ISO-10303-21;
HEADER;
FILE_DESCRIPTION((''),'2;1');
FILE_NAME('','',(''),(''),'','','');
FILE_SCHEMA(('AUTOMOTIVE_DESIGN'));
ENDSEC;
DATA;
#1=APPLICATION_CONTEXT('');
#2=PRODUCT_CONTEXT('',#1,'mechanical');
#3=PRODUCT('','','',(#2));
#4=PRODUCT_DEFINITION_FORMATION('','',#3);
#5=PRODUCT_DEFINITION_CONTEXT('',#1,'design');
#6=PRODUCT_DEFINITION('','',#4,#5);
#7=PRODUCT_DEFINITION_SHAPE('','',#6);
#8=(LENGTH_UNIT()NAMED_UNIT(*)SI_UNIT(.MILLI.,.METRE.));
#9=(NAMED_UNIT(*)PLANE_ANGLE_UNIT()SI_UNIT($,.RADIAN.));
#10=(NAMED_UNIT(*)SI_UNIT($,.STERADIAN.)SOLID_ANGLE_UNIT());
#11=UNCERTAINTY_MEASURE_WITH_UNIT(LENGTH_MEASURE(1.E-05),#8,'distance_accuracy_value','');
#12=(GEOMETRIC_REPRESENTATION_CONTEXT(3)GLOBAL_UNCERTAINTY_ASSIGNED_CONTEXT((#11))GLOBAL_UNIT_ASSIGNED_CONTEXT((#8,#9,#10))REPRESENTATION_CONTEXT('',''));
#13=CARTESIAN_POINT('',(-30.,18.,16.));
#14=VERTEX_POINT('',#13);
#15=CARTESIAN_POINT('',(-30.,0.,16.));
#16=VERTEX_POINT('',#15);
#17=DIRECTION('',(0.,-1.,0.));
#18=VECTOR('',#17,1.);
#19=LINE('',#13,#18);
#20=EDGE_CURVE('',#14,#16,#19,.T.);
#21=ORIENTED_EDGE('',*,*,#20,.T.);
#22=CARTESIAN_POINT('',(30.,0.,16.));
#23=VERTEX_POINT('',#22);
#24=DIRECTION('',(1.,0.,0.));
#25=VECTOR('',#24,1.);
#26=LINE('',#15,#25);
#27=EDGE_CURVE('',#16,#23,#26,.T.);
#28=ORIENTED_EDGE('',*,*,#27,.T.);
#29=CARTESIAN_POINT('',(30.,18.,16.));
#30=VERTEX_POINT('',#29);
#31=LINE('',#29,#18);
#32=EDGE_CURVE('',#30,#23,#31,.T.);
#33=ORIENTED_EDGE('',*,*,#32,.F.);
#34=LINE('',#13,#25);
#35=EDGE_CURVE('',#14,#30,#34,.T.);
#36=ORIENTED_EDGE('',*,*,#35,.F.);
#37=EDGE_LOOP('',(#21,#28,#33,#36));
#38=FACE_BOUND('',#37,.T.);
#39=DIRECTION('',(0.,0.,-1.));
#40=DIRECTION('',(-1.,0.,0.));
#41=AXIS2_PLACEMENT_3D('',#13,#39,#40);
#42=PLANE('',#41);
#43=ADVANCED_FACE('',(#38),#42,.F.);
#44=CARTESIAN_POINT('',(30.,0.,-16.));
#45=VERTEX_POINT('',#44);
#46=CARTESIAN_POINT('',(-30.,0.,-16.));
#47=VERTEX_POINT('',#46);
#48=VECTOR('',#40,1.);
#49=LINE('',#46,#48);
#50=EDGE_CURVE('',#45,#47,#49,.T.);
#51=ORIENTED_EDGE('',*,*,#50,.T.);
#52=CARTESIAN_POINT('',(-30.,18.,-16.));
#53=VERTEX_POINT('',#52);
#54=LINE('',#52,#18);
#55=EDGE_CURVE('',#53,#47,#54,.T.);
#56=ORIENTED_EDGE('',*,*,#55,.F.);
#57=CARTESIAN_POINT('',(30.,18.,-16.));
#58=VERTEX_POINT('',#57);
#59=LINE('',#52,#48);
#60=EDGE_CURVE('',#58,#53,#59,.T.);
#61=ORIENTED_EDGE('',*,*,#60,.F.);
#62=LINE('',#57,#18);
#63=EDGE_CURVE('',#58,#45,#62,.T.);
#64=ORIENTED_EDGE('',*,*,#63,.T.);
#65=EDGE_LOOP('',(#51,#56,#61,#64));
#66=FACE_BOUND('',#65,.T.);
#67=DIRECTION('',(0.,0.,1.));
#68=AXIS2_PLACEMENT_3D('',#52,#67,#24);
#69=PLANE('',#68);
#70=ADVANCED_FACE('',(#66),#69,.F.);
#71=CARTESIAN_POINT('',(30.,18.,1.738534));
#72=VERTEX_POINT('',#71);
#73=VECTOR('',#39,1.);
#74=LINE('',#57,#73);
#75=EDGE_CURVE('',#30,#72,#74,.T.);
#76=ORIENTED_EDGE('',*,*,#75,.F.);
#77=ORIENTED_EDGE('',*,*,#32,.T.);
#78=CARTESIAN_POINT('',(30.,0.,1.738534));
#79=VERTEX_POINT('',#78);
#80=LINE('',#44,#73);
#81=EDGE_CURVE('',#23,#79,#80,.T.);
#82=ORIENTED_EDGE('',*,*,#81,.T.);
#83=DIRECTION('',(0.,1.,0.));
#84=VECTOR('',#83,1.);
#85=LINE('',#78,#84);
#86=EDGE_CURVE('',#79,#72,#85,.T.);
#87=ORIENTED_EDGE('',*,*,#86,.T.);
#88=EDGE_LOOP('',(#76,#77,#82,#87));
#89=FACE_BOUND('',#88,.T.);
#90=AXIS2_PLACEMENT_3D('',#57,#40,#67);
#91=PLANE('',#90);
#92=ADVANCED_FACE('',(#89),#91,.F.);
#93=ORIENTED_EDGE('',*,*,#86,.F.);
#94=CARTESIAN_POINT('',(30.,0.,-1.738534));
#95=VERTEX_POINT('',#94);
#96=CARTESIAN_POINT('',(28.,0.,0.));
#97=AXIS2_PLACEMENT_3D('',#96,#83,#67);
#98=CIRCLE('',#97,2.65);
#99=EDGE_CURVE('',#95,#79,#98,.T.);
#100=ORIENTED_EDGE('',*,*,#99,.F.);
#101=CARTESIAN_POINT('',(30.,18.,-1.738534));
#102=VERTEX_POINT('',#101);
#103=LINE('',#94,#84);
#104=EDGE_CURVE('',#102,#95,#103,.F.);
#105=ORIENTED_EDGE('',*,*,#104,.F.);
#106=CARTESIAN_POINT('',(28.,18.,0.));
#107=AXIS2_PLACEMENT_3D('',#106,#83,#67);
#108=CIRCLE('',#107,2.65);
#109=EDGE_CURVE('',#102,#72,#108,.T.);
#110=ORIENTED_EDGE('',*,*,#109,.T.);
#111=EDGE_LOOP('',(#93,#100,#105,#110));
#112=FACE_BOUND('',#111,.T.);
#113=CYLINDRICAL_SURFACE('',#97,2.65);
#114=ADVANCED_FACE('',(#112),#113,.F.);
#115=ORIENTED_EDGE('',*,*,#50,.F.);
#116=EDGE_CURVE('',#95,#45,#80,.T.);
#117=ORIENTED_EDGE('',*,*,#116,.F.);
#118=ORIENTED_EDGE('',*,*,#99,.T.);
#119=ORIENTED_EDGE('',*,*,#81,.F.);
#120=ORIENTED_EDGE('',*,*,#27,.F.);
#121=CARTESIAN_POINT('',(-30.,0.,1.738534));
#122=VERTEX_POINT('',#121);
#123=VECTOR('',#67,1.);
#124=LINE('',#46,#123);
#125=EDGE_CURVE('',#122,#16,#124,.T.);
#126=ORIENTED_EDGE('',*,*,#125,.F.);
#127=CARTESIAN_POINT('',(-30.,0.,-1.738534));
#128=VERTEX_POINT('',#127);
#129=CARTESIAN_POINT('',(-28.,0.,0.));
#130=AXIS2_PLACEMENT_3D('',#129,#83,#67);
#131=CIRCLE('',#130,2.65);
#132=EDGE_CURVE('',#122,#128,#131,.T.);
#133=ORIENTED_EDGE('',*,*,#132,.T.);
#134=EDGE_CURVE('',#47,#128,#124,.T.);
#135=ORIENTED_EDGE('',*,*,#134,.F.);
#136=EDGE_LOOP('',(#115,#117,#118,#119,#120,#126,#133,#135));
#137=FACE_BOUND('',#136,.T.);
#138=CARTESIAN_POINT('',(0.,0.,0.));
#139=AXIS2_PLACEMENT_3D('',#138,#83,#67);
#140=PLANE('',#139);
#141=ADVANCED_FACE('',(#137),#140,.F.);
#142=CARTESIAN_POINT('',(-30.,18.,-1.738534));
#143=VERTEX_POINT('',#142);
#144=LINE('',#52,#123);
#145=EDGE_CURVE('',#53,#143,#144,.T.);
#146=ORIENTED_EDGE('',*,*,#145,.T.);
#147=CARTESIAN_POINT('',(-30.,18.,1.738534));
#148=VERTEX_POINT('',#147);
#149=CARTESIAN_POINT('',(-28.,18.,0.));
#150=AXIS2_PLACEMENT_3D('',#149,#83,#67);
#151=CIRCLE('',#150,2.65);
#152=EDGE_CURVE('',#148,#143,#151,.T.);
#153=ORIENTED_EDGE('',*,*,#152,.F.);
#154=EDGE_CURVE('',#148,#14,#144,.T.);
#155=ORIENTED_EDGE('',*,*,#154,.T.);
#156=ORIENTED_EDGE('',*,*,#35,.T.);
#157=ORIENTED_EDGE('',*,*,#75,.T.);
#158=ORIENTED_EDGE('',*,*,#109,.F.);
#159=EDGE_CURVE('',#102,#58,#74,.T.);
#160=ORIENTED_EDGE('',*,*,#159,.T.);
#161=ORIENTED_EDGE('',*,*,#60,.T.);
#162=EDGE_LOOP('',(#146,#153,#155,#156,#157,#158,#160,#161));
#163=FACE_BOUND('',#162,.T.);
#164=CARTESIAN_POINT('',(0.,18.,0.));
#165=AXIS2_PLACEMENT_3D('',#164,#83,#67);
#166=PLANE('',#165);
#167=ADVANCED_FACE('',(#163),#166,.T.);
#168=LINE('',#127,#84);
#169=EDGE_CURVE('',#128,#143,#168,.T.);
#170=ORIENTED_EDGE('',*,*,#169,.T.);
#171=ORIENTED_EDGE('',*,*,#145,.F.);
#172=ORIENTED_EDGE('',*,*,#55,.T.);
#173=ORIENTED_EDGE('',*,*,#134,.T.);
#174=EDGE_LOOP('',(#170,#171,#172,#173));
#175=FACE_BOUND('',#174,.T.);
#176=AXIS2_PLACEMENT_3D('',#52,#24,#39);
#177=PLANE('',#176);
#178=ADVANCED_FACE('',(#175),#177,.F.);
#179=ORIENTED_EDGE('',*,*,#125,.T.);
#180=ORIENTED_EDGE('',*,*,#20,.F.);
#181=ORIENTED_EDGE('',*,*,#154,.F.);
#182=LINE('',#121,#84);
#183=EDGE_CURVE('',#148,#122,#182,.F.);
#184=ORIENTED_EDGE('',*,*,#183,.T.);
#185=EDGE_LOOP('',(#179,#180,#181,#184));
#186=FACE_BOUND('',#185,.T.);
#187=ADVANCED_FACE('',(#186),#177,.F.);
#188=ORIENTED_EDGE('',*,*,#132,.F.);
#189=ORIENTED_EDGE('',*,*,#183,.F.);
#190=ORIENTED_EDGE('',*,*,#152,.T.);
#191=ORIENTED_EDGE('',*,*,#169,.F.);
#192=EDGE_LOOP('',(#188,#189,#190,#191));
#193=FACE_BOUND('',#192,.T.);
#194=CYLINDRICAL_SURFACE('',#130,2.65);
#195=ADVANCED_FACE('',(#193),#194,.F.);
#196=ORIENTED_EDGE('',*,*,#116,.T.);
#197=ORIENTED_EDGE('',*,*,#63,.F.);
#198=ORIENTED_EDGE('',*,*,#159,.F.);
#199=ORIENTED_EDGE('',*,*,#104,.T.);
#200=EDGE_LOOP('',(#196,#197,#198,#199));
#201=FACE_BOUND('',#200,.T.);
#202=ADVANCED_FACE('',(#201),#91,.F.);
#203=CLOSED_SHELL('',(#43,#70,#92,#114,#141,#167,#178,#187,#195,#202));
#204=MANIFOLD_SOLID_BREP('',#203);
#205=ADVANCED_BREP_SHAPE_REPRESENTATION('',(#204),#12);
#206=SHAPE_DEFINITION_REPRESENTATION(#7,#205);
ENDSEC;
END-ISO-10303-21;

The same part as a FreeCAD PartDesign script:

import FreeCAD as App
import Part
import Sketcher
from FreeCAD import Vector
Q = App.Units.Quantity


def add_polygon(sketch, points):
    """Adds a closed chain of lines whose ends are joined by coincident constraints."""
    first, n = sketch.GeometryCount, len(points)
    for a, b in zip(points, points[1:] + points[:1]):
        sketch.addGeometry(Part.LineSegment(App.Vector(*a, 0), App.Vector(*b, 0)), False)
    for i in range(n):
        sketch.addConstraint(Sketcher.Constraint("Coincident", first + i, 2, first + (i + 1) % n, 1))

doc = App.newDocument("Part")
body = doc.addObject("PartDesign::Body", "Body")

sketch1 = body.newObject("Sketcher::SketchObject", "Sketch")
sketch1.AttachmentSupport = (doc.getObject("XZ_Plane"), [""])
sketch1.MapMode = "FlatFace"
add_polygon(sketch1, [(-30, -16), (-30, 16), (30, 16), (30, -16)])
sketch1.addConstraint(Sketcher.Constraint("Vertical", 0))
sketch1.addConstraint(Sketcher.Constraint("Horizontal", 1))
sketch1.addConstraint(Sketcher.Constraint("Vertical", 2))
sketch1.addConstraint(Sketcher.Constraint("Horizontal", 3))
sketch1.addConstraint(Sketcher.Constraint("Symmetric", 0, 2, 2, 2, -1, 1))
sketch1.addConstraint(Sketcher.Constraint("DistanceX", 1, 1, 1, 2, Q("60 mm")))
sketch1.addConstraint(Sketcher.Constraint("DistanceY", 0, 1, 0, 2, Q("32 mm")))
pad1 = body.newObject("PartDesign::Pad", "Pad")
pad1.Profile = sketch1
pad1.Length = 18
pad1.Reversed = True

sketch2 = body.newObject("Sketcher::SketchObject", "Sketch001")
sketch2.AttachmentSupport = (doc.getObject("XZ_Plane"), [""])
sketch2.MapMode = "FlatFace"
sketch2.AttachmentOffset = App.Placement(Vector(0, 0, -18), App.Rotation())
sketch2.addGeometry(Part.Circle(Vector(-28, 0, 0), Vector(0, 0, 1), 2.6), False)
sketch2.addGeometry(Part.Circle(Vector(28, 0, 0), Vector(0, 0, 1), 2.6), False)
sketch2.addConstraint(Sketcher.Constraint("Equal", 0, 1))
sketch2.addConstraint(Sketcher.Constraint("Symmetric", 0, 3, 1, 3, -1, 1))
sketch2.addConstraint(Sketcher.Constraint("PointOnObject", 0, 3, -1))
sketch2.addConstraint(Sketcher.Constraint("Diameter", 0, Q("5.3 mm")))
sketch2.addConstraint(Sketcher.Constraint("DistanceX", 0, 3, -1, 1, Q("28 mm")))
pocket1 = body.newObject("PartDesign::Pocket", "Pocket")
pocket1.Profile = sketch2
pocket1.Type = "ThroughAll"
pocket1.Reversed = True

doc.recompute()
